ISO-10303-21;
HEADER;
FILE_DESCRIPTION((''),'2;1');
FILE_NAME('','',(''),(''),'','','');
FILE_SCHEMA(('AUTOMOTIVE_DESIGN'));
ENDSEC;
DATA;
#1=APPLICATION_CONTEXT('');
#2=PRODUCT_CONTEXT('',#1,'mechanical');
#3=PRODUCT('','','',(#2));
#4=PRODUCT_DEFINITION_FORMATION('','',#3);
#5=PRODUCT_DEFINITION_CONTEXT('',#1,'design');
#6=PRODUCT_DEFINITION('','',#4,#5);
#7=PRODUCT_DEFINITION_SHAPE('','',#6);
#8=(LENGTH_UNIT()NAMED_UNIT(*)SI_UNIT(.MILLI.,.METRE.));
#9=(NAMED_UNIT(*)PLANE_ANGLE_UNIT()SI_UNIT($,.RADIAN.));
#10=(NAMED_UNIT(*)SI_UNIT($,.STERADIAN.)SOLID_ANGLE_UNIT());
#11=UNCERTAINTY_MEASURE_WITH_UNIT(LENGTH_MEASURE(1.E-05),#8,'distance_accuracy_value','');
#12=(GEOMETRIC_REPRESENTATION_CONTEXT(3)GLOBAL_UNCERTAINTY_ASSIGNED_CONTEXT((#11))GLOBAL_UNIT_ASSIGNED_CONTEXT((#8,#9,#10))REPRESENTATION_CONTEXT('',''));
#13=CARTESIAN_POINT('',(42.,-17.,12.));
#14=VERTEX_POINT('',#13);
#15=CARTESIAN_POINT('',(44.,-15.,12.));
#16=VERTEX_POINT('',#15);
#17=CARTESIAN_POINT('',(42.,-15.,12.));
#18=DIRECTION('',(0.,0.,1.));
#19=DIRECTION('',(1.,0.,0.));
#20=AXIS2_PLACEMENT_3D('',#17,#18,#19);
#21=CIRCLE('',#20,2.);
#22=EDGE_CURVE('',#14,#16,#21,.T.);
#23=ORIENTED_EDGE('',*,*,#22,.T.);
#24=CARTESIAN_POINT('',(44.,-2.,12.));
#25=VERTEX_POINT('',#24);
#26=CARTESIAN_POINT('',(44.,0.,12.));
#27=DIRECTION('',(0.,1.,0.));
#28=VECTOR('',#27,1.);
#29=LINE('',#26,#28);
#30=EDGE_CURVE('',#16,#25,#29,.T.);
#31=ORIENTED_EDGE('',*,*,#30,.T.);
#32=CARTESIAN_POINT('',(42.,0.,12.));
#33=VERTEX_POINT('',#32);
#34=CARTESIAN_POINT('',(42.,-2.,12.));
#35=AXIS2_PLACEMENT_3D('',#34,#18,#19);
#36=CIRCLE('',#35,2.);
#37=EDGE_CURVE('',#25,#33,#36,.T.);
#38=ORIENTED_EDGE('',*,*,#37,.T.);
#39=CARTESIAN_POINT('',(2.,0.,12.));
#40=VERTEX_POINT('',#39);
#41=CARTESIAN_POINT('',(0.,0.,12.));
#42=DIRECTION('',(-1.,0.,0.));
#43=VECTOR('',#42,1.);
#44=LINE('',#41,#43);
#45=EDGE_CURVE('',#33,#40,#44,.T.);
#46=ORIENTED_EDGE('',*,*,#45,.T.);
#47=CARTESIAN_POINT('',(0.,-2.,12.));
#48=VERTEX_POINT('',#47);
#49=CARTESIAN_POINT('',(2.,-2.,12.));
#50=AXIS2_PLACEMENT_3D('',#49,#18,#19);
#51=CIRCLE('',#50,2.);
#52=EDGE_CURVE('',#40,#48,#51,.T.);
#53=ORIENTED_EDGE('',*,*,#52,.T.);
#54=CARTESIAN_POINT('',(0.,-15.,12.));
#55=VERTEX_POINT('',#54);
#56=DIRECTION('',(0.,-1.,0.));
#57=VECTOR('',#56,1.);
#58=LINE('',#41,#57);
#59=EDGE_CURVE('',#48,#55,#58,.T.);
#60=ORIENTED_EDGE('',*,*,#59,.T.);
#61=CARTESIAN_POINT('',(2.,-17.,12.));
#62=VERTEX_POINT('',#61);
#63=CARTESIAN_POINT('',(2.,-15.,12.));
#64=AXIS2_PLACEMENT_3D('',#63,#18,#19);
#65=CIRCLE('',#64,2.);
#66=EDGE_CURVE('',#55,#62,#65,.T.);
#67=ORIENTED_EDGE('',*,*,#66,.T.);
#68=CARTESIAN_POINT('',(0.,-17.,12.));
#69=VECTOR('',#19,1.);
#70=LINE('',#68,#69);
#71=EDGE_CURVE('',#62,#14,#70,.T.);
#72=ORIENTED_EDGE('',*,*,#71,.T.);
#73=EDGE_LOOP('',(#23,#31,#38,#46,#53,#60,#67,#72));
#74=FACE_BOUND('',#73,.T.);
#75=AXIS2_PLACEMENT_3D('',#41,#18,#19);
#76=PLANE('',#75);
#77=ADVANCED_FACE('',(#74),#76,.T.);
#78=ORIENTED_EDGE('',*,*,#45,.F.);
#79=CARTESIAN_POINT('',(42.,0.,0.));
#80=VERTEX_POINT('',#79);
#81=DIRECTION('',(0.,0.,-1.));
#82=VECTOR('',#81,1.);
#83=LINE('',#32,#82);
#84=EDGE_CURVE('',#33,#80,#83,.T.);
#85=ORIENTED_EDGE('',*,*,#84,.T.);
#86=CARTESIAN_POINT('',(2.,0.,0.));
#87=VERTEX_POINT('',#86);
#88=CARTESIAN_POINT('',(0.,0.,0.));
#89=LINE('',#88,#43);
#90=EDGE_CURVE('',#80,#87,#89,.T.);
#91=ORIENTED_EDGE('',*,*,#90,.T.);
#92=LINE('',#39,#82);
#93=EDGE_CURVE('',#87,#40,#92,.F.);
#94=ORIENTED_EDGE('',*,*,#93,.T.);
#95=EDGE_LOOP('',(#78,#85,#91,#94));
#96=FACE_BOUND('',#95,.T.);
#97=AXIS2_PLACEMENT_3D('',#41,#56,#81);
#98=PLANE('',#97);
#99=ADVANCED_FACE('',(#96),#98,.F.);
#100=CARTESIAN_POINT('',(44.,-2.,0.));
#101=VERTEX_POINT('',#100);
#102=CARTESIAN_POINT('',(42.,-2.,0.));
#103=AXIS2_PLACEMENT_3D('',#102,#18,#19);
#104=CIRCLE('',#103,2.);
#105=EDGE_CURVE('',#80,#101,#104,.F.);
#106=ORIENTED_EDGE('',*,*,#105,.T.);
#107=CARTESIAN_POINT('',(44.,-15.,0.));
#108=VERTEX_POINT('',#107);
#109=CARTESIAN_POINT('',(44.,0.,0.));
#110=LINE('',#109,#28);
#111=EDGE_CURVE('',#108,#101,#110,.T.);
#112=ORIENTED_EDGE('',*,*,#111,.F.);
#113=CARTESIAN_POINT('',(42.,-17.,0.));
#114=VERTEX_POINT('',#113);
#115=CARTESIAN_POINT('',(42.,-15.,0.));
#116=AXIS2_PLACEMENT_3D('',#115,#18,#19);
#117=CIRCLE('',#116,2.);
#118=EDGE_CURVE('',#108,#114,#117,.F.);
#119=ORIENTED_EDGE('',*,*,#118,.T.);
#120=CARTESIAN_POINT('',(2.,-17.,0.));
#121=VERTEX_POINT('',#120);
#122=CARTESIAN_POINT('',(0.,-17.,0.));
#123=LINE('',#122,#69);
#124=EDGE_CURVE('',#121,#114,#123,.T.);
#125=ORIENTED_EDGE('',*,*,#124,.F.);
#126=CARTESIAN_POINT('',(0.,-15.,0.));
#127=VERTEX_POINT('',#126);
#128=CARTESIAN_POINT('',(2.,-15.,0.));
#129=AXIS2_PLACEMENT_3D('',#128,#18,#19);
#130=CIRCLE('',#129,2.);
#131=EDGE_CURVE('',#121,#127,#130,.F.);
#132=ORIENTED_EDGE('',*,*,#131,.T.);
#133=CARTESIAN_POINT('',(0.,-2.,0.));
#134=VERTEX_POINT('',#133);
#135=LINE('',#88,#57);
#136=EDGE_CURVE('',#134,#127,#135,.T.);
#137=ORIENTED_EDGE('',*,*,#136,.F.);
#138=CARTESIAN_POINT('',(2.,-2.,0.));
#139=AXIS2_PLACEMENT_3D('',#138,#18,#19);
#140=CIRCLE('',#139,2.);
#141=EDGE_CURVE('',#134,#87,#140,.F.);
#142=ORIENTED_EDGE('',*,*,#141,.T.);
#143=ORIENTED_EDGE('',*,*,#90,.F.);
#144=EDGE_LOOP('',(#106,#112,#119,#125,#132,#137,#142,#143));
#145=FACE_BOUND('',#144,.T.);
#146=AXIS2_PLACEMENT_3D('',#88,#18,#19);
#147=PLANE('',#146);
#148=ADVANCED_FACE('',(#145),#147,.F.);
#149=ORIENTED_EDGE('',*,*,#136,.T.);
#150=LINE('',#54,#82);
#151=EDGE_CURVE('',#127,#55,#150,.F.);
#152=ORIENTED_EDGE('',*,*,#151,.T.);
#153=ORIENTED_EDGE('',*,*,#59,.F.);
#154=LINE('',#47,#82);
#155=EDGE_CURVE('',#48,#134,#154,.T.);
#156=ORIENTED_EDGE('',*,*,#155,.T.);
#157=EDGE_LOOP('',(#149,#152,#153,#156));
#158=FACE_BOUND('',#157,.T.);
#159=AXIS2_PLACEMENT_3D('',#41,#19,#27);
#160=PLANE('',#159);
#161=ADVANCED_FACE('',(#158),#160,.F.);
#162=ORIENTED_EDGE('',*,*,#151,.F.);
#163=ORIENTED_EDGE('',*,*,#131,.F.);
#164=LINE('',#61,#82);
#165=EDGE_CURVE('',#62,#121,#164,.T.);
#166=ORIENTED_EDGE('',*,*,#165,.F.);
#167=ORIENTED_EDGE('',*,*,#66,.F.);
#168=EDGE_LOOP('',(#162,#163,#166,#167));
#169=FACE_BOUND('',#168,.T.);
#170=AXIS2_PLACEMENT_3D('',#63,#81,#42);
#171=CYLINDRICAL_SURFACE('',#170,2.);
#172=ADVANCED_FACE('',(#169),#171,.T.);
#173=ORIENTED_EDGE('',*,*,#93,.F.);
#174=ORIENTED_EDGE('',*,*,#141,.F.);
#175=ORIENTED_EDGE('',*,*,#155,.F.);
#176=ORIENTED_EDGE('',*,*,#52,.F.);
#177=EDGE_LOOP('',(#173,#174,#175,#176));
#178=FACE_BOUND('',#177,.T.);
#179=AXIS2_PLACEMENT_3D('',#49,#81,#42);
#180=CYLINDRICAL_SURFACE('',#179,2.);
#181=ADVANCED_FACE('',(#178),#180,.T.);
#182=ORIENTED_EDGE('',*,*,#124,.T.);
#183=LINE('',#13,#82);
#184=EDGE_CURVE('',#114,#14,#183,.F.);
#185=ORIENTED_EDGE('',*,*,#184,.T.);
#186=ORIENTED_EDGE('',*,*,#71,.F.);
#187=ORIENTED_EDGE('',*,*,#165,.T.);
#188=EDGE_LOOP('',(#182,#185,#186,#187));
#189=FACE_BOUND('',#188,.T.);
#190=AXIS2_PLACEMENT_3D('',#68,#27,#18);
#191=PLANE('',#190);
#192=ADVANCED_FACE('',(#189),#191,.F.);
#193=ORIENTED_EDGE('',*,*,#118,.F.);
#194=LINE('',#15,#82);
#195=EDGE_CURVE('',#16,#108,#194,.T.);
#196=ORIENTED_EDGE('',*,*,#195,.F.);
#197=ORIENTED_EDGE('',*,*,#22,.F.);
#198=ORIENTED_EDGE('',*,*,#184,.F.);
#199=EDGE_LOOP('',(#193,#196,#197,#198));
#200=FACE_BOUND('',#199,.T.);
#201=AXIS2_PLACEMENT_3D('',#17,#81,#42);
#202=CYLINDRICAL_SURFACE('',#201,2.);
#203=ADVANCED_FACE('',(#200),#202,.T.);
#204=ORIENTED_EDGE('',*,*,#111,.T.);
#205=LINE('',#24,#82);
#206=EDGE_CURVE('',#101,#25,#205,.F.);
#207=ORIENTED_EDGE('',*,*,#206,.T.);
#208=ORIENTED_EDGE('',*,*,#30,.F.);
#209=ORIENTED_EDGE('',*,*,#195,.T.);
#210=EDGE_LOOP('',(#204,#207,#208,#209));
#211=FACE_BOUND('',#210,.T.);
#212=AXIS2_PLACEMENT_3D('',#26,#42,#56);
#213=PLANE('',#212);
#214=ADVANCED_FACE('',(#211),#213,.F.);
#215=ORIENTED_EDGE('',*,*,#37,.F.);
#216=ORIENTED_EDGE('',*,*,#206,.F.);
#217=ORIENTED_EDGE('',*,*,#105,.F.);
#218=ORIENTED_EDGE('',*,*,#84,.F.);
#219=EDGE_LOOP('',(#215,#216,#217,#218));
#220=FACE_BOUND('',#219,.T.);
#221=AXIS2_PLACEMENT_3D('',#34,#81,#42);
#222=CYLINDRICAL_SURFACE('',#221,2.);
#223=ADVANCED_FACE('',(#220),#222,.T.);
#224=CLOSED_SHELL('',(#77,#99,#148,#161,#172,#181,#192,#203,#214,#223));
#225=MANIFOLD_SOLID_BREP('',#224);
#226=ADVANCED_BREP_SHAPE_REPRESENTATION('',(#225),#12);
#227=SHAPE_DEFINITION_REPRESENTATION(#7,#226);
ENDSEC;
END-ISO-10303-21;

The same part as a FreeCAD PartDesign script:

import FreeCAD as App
import Part
import Sketcher
Q = App.Units.Quantity


def edges_at(feature, points):
    """Names of the edges that pass closest to the given points."""
    edges = feature.Shape.Edges
    near = lambda p: min(range(len(edges)), key=lambda i: edges[i].distToShape(Part.Vertex(*p))[0])
    return sorted({f"Edge{near(p) + 1}" for p in points})

doc = App.newDocument("Part")
params = doc.addObject("Spreadsheet::Sheet", "Params")
for row, (alias, value) in enumerate([
    ("sketch1_width", "44 mm"),
    ("sketch1_height", "17 mm"),
    ("pad1_length", "12 mm"),
    ("fillet_radius", "2 mm"),
], start=1):
    params.set(f"A{row}", alias)
    params.set(f"B{row}", "=" + value)
    params.setAlias(f"B{row}", alias)

body = doc.addObject("PartDesign::Body", "Body")

# Sketch on XY plane
sketch1 = body.newObject("Sketcher::SketchObject", "Sketch")
sketch1.AttachmentSupport = (doc.getObject("XY_Plane"), [""])
sketch1.MapMode = "FlatFace"
sketch1.addGeometry([
    Part.LineSegment(App.Vector(0, 0, 0), App.Vector(0, -17, 0)),
    Part.LineSegment(App.Vector(0, -17, 0), App.Vector(44, -17, 0)),
    Part.LineSegment(App.Vector(44, -17, 0), App.Vector(44, 0, 0)),
    Part.LineSegment(App.Vector(44, 0, 0), App.Vector(0, 0, 0)),
], False)
sketch1.addConstraint([
    Sketcher.Constraint("Coincident", 0, 2, 1, 1),
    Sketcher.Constraint("Coincident", 1, 2, 2, 1),
    Sketcher.Constraint("Coincident", 2, 2, 3, 1),
    Sketcher.Constraint("Coincident", 3, 2, 0, 1),
    Sketcher.Constraint("Vertical", 0),
    Sketcher.Constraint("Horizontal", 1),
    Sketcher.Constraint("Vertical", 2),
    Sketcher.Constraint("Horizontal", 3),
    Sketcher.Constraint("Coincident", 3, 2, -1, 1),
    Sketcher.Constraint("DistanceX", 1, 1, 1, 2, Q("44 mm")),
    Sketcher.Constraint("DistanceY", 0, 2, 0, 1, Q("17 mm")),
])
sketch1.setExpression("Constraints[9]", "Params.sketch1_width")
sketch1.setExpression("Constraints[10]", "Params.sketch1_height")
pad1 = body.newObject("PartDesign::Pad", "Pad")
pad1.Profile = sketch1
pad1.setExpression("Length", "Params.pad1_length")
doc.recompute()

fillet = body.newObject("PartDesign::Fillet", "Fillet")
fillet.Base = (pad1, edges_at(pad1, [
    (0, 0, 6),
    (44, 0, 6),
    (44, -17, 6),
    (0, -17, 6),
]))
fillet.setExpression("Radius", "Params.fillet_radius")

doc.recompute()
